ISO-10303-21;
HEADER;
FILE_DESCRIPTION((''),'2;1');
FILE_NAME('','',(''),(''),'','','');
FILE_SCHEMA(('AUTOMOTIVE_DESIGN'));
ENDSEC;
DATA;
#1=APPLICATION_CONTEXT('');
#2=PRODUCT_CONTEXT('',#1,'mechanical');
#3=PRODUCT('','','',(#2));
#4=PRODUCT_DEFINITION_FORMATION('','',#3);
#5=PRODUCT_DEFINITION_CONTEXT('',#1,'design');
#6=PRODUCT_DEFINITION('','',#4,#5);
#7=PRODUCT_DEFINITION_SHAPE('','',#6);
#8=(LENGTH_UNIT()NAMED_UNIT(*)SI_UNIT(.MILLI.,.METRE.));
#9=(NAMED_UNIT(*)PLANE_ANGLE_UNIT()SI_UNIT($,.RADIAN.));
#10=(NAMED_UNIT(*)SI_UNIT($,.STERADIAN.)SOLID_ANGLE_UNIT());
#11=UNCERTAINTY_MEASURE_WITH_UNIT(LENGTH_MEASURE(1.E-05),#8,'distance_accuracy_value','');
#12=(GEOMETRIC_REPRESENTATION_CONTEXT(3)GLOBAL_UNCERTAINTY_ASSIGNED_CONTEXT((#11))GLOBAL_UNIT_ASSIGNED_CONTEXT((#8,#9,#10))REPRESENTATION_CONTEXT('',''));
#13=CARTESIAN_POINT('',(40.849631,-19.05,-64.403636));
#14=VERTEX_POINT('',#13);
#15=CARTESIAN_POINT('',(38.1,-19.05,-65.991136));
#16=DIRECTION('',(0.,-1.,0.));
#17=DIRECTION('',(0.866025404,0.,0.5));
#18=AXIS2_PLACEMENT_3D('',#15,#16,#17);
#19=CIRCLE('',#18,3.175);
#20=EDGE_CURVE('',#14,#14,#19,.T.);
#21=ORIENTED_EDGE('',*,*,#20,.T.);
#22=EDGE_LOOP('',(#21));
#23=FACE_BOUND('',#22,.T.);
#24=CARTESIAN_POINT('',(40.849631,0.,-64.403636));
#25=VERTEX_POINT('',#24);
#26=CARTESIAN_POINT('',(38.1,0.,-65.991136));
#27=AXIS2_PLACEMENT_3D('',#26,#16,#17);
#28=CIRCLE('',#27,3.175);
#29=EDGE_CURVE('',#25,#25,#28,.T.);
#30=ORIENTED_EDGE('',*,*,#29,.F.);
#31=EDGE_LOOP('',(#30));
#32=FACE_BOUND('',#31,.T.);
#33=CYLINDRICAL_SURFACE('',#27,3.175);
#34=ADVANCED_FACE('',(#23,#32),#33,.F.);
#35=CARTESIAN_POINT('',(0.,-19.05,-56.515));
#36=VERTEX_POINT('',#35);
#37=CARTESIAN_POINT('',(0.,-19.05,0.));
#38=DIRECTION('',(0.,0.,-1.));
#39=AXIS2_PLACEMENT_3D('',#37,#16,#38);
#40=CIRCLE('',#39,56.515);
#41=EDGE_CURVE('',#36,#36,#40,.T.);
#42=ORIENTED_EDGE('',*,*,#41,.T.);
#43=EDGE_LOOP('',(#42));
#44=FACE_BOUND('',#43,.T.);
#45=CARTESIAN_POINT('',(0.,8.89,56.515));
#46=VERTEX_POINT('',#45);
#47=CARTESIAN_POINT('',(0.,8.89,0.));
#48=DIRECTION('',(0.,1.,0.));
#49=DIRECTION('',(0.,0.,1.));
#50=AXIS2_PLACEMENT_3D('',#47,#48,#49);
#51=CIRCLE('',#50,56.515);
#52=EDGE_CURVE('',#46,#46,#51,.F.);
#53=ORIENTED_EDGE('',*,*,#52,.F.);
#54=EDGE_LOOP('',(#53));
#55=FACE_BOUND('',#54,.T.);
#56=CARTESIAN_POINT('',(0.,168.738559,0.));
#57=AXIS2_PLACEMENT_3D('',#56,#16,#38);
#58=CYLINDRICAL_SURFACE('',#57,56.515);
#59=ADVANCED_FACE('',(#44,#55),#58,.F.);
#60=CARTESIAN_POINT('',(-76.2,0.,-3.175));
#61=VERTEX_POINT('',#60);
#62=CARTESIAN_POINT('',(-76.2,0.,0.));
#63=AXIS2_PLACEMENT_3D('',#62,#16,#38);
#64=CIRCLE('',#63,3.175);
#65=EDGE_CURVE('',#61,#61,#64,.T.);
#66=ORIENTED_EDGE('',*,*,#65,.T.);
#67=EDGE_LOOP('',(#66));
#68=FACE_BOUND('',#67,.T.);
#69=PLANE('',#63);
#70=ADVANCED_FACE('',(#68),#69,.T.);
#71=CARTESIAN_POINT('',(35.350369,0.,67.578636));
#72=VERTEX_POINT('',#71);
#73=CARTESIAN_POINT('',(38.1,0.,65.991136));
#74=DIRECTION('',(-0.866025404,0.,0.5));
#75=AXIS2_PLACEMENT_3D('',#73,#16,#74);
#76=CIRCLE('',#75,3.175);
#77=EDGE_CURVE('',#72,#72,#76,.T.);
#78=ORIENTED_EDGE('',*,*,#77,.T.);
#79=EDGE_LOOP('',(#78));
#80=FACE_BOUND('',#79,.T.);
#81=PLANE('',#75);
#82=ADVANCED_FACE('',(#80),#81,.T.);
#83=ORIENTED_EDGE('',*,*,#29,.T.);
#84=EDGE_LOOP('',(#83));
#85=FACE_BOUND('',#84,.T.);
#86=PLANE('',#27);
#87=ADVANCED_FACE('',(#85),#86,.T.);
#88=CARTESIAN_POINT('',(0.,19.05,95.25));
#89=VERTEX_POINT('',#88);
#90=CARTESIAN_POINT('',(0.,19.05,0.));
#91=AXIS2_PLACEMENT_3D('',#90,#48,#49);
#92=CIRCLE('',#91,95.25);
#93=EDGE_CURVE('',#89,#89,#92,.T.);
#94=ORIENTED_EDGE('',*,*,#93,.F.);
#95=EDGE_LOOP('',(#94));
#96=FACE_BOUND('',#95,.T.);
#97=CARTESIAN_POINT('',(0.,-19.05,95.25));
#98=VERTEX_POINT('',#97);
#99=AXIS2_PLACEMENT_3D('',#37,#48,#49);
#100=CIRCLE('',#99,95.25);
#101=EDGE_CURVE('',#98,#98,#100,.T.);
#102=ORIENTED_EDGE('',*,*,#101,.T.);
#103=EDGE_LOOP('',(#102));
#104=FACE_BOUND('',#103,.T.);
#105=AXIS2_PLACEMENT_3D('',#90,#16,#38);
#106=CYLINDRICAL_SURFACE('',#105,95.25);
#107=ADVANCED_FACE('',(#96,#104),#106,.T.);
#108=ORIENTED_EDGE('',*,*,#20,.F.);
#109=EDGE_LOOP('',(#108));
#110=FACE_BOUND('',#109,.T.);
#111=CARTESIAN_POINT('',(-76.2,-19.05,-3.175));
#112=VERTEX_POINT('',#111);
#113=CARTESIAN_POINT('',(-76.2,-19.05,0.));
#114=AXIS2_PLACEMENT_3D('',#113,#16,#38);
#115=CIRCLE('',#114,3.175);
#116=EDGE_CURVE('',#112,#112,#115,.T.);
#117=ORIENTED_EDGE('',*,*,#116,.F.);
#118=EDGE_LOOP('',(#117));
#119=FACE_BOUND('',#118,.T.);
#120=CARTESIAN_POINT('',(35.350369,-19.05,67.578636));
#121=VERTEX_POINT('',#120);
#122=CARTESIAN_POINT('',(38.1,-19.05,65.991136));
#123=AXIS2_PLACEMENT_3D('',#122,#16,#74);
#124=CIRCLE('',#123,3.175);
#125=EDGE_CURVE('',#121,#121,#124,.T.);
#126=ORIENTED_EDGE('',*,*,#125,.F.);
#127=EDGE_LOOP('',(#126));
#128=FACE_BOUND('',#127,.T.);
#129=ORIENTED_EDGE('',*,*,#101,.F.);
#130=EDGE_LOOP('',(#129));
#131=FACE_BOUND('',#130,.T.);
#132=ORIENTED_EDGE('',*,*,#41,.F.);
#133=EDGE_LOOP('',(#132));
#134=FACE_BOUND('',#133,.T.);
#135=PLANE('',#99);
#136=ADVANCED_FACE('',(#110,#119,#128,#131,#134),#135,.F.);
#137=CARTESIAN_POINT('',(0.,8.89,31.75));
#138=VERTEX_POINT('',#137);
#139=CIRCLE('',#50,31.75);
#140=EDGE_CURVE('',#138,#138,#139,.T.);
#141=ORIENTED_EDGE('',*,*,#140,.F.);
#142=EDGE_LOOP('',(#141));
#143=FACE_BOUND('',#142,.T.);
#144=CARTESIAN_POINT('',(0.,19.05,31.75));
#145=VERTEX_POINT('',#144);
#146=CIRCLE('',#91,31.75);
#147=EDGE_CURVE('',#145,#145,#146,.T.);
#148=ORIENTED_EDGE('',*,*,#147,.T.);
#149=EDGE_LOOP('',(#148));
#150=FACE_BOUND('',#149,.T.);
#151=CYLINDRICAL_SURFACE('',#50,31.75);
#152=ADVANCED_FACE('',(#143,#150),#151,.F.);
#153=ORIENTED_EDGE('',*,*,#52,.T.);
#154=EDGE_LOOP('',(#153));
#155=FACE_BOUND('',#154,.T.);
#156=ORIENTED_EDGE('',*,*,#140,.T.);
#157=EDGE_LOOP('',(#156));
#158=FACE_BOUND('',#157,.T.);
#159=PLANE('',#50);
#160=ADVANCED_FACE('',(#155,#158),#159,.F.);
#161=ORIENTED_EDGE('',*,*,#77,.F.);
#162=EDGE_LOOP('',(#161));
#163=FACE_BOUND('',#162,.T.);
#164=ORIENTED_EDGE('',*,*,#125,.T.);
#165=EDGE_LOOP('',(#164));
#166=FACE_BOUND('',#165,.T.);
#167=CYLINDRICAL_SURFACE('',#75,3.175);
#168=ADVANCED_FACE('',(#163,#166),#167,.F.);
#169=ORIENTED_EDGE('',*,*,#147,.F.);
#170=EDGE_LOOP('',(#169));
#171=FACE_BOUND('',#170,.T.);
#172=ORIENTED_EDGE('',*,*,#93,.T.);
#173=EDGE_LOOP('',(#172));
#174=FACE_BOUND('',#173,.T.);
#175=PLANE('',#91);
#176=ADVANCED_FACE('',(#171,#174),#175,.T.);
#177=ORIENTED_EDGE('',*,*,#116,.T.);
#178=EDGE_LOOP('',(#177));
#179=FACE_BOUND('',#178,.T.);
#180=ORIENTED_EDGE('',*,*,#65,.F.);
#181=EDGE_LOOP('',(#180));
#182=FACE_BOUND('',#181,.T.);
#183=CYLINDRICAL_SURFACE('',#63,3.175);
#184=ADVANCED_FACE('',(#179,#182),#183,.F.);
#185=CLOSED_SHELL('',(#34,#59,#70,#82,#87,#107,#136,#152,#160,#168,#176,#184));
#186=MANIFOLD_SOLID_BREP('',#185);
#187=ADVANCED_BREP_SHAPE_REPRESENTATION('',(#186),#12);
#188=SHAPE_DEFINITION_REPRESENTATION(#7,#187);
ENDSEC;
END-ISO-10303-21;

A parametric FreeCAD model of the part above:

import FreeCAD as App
import Part
import Sketcher
Q = App.Units.Quantity

doc = App.newDocument("Part")
body = doc.addObject("PartDesign::Body", "Body")

sketch1 = body.newObject("Sketcher::SketchObject", "Sketch")
sketch1.AttachmentSupport = (doc.getObject("XZ_Plane"), [""])
sketch1.MapMode = "FlatFace"
sketch1.addGeometry(Part.Circle(App.Vector(0, 0, 0), App.Vector(0, 0, 1), 95), False)
sketch1.addConstraint(Sketcher.Constraint("Coincident", 0, 3, -1, 1))
sketch1.addConstraint(Sketcher.Constraint("Diameter", 0, Q("7.5 in")))
pad1 = body.newObject("PartDesign::Pad", "Pad")
pad1.Profile = sketch1
pad1.Length = Q("1.5 in")
pad1.Midplane = True

sketch2 = body.newObject("Sketcher::SketchObject", "Sketch001")
sketch2.AttachmentSupport = (doc.getObject("XZ_Plane"), [""])
sketch2.MapMode = "FlatFace"
sketch2.AttachmentOffset = App.Placement(App.Vector(0, 0, -0.75 * 25.4), App.Rotation())
sketch2.addGeometry(Part.Circle(App.Vector(0, 0, 0), App.Vector(0, 0, 1), 32), False)
sketch2.addConstraint(Sketcher.Constraint("Coincident", 0, 3, -1, 1))
sketch2.addConstraint(Sketcher.Constraint("Diameter", 0, Q("2.5 in")))
pocket1 = body.newObject("PartDesign::Pocket", "Pocket")
pocket1.Profile = sketch2
pocket1.Length = Q("0.4 in")
pocket1.Reversed = True

sketch3 = body.newObject("Sketcher::SketchObject", "Sketch002")
sketch3.AttachmentSupport = (doc.getObject("XZ_Plane"), [""])
sketch3.MapMode = "FlatFace"
sketch3.AttachmentOffset = App.Placement(App.Vector(0, 0, 0.75 * 25.4), App.Rotation())
sketch3.addGeometry(Part.Circle(App.Vector(0, 0, 0), App.Vector(0, 0, 1), 57), False)
sketch3.addConstraint(Sketcher.Constraint("Coincident", 0, 3, -1, 1))
sketch3.addConstraint(Sketcher.Constraint("Diameter", 0, Q("4.45 in")))
pocket2 = body.newObject("PartDesign::Pocket", "Pocket001")
pocket2.Profile = sketch3
pocket2.Length = Q("1.1 in")

sketch4 = body.newObject("Sketcher::SketchObject", "Sketch003")
sketch4.AttachmentSupport = (doc.getObject("XZ_Plane"), [""])
sketch4.MapMode = "FlatFace"
sketch4.AttachmentOffset = App.Placement(App.Vector(0, 0, 0.75 * 25.4), App.Rotation())
sketch4.addGeometry(Part.Circle(App.Vector(-76.2, 0, 0), App.Vector(0, 0, 1), 3.2), False)
sketch4.addConstraint(Sketcher.Constraint("PointOnObject", 0, 3, -1))
sketch4.addConstraint(Sketcher.Constraint("Diameter", 0, Q("0.25 in")))
sketch4.addConstraint(Sketcher.Constraint("DistanceX", 0, 3, -1, 1, Q("3 in")))
pocket3 = body.newObject("PartDesign::Pocket", "Pocket002")
pocket3.Profile = sketch4
pocket3.Length = Q("0.75 in")
doc.recompute()

polarpattern = body.newObject("PartDesign::PolarPattern", "PolarPattern")
polarpattern.Originals = [pocket3]
polarpattern.Axis = (doc.getObject("Y_Axis"), [""])
polarpattern.Angle = 360
polarpattern.Occurrences = 3
body.Tip = polarpattern

doc.recompute()
